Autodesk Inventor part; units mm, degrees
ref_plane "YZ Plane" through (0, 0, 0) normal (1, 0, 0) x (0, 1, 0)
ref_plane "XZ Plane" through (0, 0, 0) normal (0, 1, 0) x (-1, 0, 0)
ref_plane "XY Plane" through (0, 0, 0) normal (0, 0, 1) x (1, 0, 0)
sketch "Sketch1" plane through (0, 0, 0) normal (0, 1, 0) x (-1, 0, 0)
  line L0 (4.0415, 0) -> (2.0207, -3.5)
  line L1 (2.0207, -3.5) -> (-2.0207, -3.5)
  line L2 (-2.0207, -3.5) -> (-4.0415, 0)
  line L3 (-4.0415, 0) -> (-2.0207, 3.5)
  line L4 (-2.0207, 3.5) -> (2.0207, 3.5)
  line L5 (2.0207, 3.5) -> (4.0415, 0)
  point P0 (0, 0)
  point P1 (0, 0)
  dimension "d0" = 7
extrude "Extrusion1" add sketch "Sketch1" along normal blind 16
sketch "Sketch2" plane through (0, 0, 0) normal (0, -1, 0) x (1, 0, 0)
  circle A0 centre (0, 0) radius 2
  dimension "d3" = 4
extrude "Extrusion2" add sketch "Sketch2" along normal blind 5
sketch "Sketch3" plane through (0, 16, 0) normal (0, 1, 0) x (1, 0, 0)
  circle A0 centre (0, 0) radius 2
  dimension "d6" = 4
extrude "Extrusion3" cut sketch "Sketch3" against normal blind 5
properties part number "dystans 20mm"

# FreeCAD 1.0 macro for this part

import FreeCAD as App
import Part
import Sketcher

V = App.Vector
Q = App.Units.Quantity

doc = App.newDocument("Part")
body = doc.addObject("PartDesign::Body", "Body")

sketch1 = body.newObject("Sketcher::SketchObject", "Sketch")
sketch1.AttachmentSupport = (doc.getObject("XZ_Plane"), [""])
sketch1.MapMode = "FlatFace"
sketch1.addGeometry([
    Part.LineSegment(V(-2.0207, -3.5, 0), V(-4.0415, 0, 0)),
    Part.LineSegment(V(-4.0415, 0, 0), V(-2.0207, 3.5, 0)),
    Part.LineSegment(V(-2.0207, 3.5, 0), V(2.0207, 3.5, 0)),
    Part.LineSegment(V(2.0207, 3.5, 0), V(4.0415, 0, 0)),
    Part.LineSegment(V(4.0415, 0, 0), V(2.0207, -3.5, 0)),
    Part.LineSegment(V(2.0207, -3.5, 0), V(-2.0207, -3.5, 0)),
], False)
sketch1.addConstraint([
    Sketcher.Constraint("Coincident", 0, 2, 1, 1),
    Sketcher.Constraint("Coincident", 1, 2, 2, 1),
    Sketcher.Constraint("Coincident", 2, 2, 3, 1),
    Sketcher.Constraint("Coincident", 3, 2, 4, 1),
    Sketcher.Constraint("Coincident", 4, 2, 5, 1),
    Sketcher.Constraint("Coincident", 5, 2, 0, 1),
    Sketcher.Constraint("Horizontal", 2),
    Sketcher.Constraint("Horizontal", 5),
    Sketcher.Constraint("Symmetric", 0, 2, 3, 2, -1, 1),
    Sketcher.Constraint("Symmetric", 1, 2, 4, 2, -1, 1),
    Sketcher.Constraint("PointOnObject", 0, 2, -1),
    Sketcher.Constraint("Parallel", 0, 3),
    Sketcher.Constraint("Vertical", 2, 2, 4, 2),
    Sketcher.Constraint("DistanceY", 4, 2, 2, 2, 7.0),
    Sketcher.Constraint("Angle", 0, Q("120.001 deg")),
    Sketcher.Constraint("DistanceX", 2, 1, 2, 2, 4.0414),
])
pad1 = body.newObject("PartDesign::Pad", "Pad")
pad1.Profile = sketch1
pad1.Length = 16
pad1.Reversed = True

sketch2 = body.newObject("Sketcher::SketchObject", "Sketch001")
sketch2.AttachmentSupport = (doc.getObject("XZ_Plane"), [""])
sketch2.MapMode = "FlatFace"
sketch2.addGeometry(Part.Circle(V(0, 0, 0), V(0, 0, 1), 2), False)
sketch2.addConstraint([
    Sketcher.Constraint("Coincident", 0, 3, -1, 1),
    Sketcher.Constraint("Diameter", 0, 4.0),
])
pad2 = body.newObject("PartDesign::Pad", "Pad001")
pad2.Profile = sketch2
pad2.Length = 5

sketch3 = body.newObject("Sketcher::SketchObject", "Sketch002")
sketch3.AttachmentSupport = (doc.getObject("XZ_Plane"), [""])
sketch3.MapMode = "FlatFace"
sketch3.AttachmentOffset = App.Placement(V(0, 0, -16), App.Rotation())
sketch3.addGeometry(Part.Circle(V(0, 0, 0), V(0, 0, 1), 2), False)
sketch3.addConstraint([
    Sketcher.Constraint("Coincident", 0, 3, -1, 1),
    Sketcher.Constraint("Diameter", 0, 4.0),
])
pocket1 = body.newObject("PartDesign::Pocket", "Pocket")
pocket1.Profile = sketch3
pocket1.Length = 5
pocket1.Reversed = True

doc.recompute()
